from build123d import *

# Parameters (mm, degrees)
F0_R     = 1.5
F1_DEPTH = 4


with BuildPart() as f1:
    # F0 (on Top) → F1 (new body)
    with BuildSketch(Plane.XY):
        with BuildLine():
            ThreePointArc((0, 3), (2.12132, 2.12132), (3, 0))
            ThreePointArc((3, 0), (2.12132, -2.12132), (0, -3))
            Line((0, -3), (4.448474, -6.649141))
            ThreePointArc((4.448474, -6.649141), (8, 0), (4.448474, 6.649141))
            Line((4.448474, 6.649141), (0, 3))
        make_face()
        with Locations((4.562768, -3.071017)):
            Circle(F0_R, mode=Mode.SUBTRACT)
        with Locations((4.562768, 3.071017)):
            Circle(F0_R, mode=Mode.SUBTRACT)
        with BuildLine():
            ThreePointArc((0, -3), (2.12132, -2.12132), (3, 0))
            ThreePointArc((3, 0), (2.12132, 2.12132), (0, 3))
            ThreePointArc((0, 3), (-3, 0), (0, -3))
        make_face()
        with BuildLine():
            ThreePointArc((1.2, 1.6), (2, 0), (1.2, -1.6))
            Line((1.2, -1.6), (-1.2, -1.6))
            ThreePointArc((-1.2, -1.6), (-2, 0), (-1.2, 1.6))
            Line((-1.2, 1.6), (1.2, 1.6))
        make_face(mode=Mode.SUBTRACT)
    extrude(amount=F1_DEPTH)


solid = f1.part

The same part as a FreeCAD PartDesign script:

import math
import FreeCAD as App
import Part
import Sketcher
from FreeCAD import Vector

doc = App.newDocument("Part")
body = doc.addObject("PartDesign::Body", "Body")

sketch1 = body.newObject("Sketcher::SketchObject", "Sketch")
sketch1.AttachmentSupport = (doc.getObject("XY_Plane"), [""])
sketch1.MapMode = "FlatFace"
sketch1.addGeometry(Part.LineSegment(Vector(4.4, 6.6, 0), Vector(0, 3, 0)), False)
sketch1.addGeometry(Part.ArcOfCircle(Part.Circle(Vector(0, 0, 0), Vector(0, 0, 1), 3), math.radians(90), math.radians(270)), False)
sketch1.addGeometry(Part.LineSegment(Vector(0, -3, 0), Vector(4.4, -6.6, 0)), False)
sketch1.addGeometry(Part.ArcOfCircle(Part.Circle(Vector(0, 0, 0), Vector(0, 0, 1), 8), math.radians(-56), math.radians(56)), False)
sketch1.addGeometry(Part.Circle(Vector(4.6, -3.1, 0), Vector(0, 0, 1), 1.5), False)
sketch1.addGeometry(Part.LineSegment(Vector(-1.2, 1.6, 0), Vector(1.2, 1.6, 0)), False)
sketch1.addGeometry(Part.ArcOfCircle(Part.Circle(Vector(0, 0, 0), Vector(0, 0, 1), 2), math.radians(-53), math.radians(53)), False)
sketch1.addGeometry(Part.LineSegment(Vector(1.2, -1.6, 0), Vector(-1.2, -1.6, 0)), False)
sketch1.addGeometry(Part.ArcOfCircle(Part.Circle(Vector(0, 0, 0), Vector(0, 0, 1), 2), math.radians(127), math.radians(233)), False)
sketch1.addGeometry(Part.Circle(Vector(4.6, 3.1, 0), Vector(0, 0, 1), 1.5), False)
sketch1.addConstraint(Sketcher.Constraint("Coincident", 0, 2, 1, 1))
sketch1.addConstraint(Sketcher.Constraint("Coincident", 1, 2, 2, 1))
sketch1.addConstraint(Sketcher.Constraint("Coincident", 2, 2, 3, 1))
sketch1.addConstraint(Sketcher.Constraint("Coincident", 3, 2, 0, 1))
sketch1.addConstraint(Sketcher.Constraint("Coincident", 5, 2, 6, 2))
sketch1.addConstraint(Sketcher.Constraint("Coincident", 6, 1, 7, 1))
sketch1.addConstraint(Sketcher.Constraint("Coincident", 7, 2, 8, 2))
sketch1.addConstraint(Sketcher.Constraint("Coincident", 8, 1, 5, 1))
sketch1.addConstraint(Sketcher.Constraint("Horizontal", 5))
sketch1.addConstraint(Sketcher.Constraint("Horizontal", 7))
sketch1.addConstraint(Sketcher.Constraint("Coincident", 1, 3, -1, 1))
sketch1.addConstraint(Sketcher.Constraint("Coincident", 3, 3, -1, 1))
sketch1.addConstraint(Sketcher.Constraint("Coincident", 6, 3, -1, 1))
sketch1.addConstraint(Sketcher.Constraint("Coincident", 8, 3, -1, 1))
sketch1.addConstraint(Sketcher.Constraint("Equal", 6, 8))
sketch1.addConstraint(Sketcher.Constraint("Equal", 4, 9))
sketch1.addConstraint(Sketcher.Constraint("Symmetric", 4, 3, 9, 3, -1))
sketch1.addConstraint(Sketcher.Constraint("PointOnObject", 0, 2, -2))
sketch1.addConstraint(Sketcher.Constraint("PointOnObject", 1, 2, -2))
sketch1.addConstraint(Sketcher.Constraint("Vertical", 2, 2, 3, 2))
sketch1.addConstraint(Sketcher.Constraint("Vertical", 5, 2, 6, 1))
sketch1.addConstraint(Sketcher.Constraint("Diameter", 4, 3.0))
sketch1.addConstraint(Sketcher.Constraint("Radius", 1, 3.0))
sketch1.addConstraint(Sketcher.Constraint("Radius", 3, 8.0))
sketch1.addConstraint(Sketcher.Constraint("Radius", 6, 2.0))
sketch1.addConstraint(Sketcher.Constraint("DistanceX", 5, 1, 5, 2, 2.4))
sketch1.addConstraint(Sketcher.Constraint("DistanceY", 2, 2, -1, 1, 6.649141))
sketch1.addConstraint(Sketcher.Constraint("DistanceX", -1, 1, 4, 3, 4.562768))
sketch1.addConstraint(Sketcher.Constraint("DistanceY", 4, 3, -1, 1, 3.071017))
pad1 = body.newObject("PartDesign::Pad", "Pad")
pad1.Profile = sketch1
pad1.Length = 4

doc.recompute()
